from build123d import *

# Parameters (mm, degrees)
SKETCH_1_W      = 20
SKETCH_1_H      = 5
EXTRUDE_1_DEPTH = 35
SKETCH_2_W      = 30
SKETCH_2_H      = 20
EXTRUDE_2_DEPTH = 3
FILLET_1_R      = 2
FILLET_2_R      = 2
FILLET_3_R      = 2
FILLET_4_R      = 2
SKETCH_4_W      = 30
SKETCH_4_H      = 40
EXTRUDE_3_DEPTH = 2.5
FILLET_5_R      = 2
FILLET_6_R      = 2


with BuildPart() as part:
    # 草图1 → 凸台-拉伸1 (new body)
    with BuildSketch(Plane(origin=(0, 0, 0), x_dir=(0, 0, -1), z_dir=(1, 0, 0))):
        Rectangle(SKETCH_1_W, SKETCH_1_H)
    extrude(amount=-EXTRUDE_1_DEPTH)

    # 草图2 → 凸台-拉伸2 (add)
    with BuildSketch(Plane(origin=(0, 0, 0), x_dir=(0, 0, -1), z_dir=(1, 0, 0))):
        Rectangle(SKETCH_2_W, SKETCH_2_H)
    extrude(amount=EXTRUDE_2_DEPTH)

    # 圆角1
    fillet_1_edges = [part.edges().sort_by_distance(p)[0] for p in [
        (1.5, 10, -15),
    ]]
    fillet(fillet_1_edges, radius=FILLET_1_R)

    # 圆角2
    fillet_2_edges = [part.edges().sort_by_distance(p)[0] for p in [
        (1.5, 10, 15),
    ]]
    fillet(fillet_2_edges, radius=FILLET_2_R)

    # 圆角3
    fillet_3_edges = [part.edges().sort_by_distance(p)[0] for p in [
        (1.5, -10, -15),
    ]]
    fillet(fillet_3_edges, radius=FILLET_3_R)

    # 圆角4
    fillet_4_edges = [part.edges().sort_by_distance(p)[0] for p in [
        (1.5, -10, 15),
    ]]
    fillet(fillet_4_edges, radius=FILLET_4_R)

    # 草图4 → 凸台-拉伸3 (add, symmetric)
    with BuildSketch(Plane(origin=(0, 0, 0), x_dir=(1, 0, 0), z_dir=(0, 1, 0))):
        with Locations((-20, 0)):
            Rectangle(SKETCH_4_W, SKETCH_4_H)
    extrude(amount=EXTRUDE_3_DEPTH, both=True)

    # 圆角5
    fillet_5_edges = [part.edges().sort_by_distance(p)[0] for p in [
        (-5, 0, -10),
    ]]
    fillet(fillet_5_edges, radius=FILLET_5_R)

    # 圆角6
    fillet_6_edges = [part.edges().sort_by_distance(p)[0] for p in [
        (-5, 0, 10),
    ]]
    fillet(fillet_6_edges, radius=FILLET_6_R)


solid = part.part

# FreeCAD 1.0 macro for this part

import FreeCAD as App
import Part
import Sketcher
Q = App.Units.Quantity


def edges_at(feature, points):
    """Names of the edges that pass closest to the given points."""
    edges = feature.Shape.Edges
    near = lambda p: min(range(len(edges)), key=lambda i: edges[i].distToShape(Part.Vertex(*p))[0])
    return sorted({f"Edge{near(p) + 1}" for p in points})


def add_polygon(sketch, points):
    """Adds a closed chain of lines whose ends are joined by coincident constraints."""
    first, n = sketch.GeometryCount, len(points)
    for a, b in zip(points, points[1:] + points[:1]):
        sketch.addGeometry(Part.LineSegment(App.Vector(*a, 0), App.Vector(*b, 0)), False)
    for i in range(n):
        sketch.addConstraint(Sketcher.Constraint("Coincident", first + i, 2, first + (i + 1) % n, 1))

doc = App.newDocument("Part")
body = doc.addObject("PartDesign::Body", "Body")

# Sketch on YZ plane
sketch1 = body.newObject("Sketcher::SketchObject", "Sketch")
sketch1.AttachmentSupport = (doc.getObject("YZ_Plane"), [""])
sketch1.MapMode = "FlatFace"
add_polygon(sketch1, [(2, 10), (-2, 10), (-2, -10), (2, -10)])  # lines 0-3
sketch1.addConstraint([
    Sketcher.Constraint("Horizontal", 0),
    Sketcher.Constraint("Vertical", 1),
    Sketcher.Constraint("Horizontal", 2),
    Sketcher.Constraint("Vertical", 3),
    Sketcher.Constraint("Symmetric", 0, 2, 2, 2, -1, 1),
    Sketcher.Constraint("DistanceX", 0, 2, 0, 1, Q("5 mm")),
    Sketcher.Constraint("DistanceY", 1, 2, 1, 1, Q("20 mm")),
])
pad1 = body.newObject("PartDesign::Pad", "Pad")
pad1.Profile = sketch1
pad1.Length = 35
pad1.Reversed = True

# Sketch on YZ plane
sketch2 = body.newObject("Sketcher::SketchObject", "Sketch001")
sketch2.AttachmentSupport = (doc.getObject("YZ_Plane"), [""])
sketch2.MapMode = "FlatFace"
add_polygon(sketch2, [(10, 15), (-10, 15), (-10, -15), (10, -15)])  # lines 0-3
sketch2.addConstraint([
    Sketcher.Constraint("Horizontal", 0),
    Sketcher.Constraint("Vertical", 1),
    Sketcher.Constraint("Horizontal", 2),
    Sketcher.Constraint("Vertical", 3),
    Sketcher.Constraint("Symmetric", 0, 2, 2, 2, -1, 1),
    Sketcher.Constraint("DistanceX", 0, 2, 0, 1, Q("20 mm")),
    Sketcher.Constraint("DistanceY", 1, 2, 1, 1, Q("30 mm")),
])
pad2 = body.newObject("PartDesign::Pad", "Pad001")
pad2.Profile = sketch2
pad2.Length = 3
doc.recompute()

fillet = body.newObject("PartDesign::Fillet", "Fillet")
fillet.Base = (pad2, edges_at(pad2, [(1.5, 10, -15)]))
fillet.Radius = 2
doc.recompute()

fillet2 = body.newObject("PartDesign::Fillet", "Fillet001")
fillet2.Base = (fillet, edges_at(fillet, [(1.5, 10, 15)]))
fillet2.Radius = 2
doc.recompute()

fillet3 = body.newObject("PartDesign::Fillet", "Fillet002")
fillet3.Base = (fillet2, edges_at(fillet2, [(1.5, -10, -15)]))
fillet3.Radius = 2
doc.recompute()

fillet4 = body.newObject("PartDesign::Fillet", "Fillet003")
fillet4.Base = (fillet3, edges_at(fillet3, [(1.5, -10, 15)]))
fillet4.Radius = 2

# Sketch on XZ plane
sketch3 = body.newObject("Sketcher::SketchObject", "Sketch002")
sketch3.AttachmentSupport = (doc.getObject("XZ_Plane"), [""])
sketch3.MapMode = "FlatFace"
add_polygon(sketch3, [(-35, -20), (-35, 20), (-5, 20), (-5, -20)])  # lines 0-3
sketch3.addConstraint([
    Sketcher.Constraint("Vertical", 0),
    Sketcher.Constraint("Horizontal", 1),
    Sketcher.Constraint("Vertical", 2),
    Sketcher.Constraint("Horizontal", 3),
    Sketcher.Constraint("DistanceX", 1, 1, 1, 2, Q("30 mm")),
    Sketcher.Constraint("DistanceY", 0, 1, 0, 2, Q("40 mm")),
    Sketcher.Constraint("DistanceX", 0, 2, -1, 1, Q("35 mm")),
    Sketcher.Constraint("DistanceY", -1, 1, 0, 2, Q("20 mm")),
])
pad3 = body.newObject("PartDesign::Pad", "Pad002")
pad3.Profile = sketch3
pad3.Length = 5
pad3.Midplane = True
doc.recompute()

fillet5 = body.newObject("PartDesign::Fillet", "Fillet004")
fillet5.Base = (pad3, edges_at(pad3, [(-5, 0, -10)]))
fillet5.Radius = 2
doc.recompute()

fillet6 = body.newObject("PartDesign::Fillet", "Fillet005")
fillet6.Base = (fillet5, edges_at(fillet5, [(-5, 0, 10)]))
fillet6.Radius = 2

doc.recompute()
